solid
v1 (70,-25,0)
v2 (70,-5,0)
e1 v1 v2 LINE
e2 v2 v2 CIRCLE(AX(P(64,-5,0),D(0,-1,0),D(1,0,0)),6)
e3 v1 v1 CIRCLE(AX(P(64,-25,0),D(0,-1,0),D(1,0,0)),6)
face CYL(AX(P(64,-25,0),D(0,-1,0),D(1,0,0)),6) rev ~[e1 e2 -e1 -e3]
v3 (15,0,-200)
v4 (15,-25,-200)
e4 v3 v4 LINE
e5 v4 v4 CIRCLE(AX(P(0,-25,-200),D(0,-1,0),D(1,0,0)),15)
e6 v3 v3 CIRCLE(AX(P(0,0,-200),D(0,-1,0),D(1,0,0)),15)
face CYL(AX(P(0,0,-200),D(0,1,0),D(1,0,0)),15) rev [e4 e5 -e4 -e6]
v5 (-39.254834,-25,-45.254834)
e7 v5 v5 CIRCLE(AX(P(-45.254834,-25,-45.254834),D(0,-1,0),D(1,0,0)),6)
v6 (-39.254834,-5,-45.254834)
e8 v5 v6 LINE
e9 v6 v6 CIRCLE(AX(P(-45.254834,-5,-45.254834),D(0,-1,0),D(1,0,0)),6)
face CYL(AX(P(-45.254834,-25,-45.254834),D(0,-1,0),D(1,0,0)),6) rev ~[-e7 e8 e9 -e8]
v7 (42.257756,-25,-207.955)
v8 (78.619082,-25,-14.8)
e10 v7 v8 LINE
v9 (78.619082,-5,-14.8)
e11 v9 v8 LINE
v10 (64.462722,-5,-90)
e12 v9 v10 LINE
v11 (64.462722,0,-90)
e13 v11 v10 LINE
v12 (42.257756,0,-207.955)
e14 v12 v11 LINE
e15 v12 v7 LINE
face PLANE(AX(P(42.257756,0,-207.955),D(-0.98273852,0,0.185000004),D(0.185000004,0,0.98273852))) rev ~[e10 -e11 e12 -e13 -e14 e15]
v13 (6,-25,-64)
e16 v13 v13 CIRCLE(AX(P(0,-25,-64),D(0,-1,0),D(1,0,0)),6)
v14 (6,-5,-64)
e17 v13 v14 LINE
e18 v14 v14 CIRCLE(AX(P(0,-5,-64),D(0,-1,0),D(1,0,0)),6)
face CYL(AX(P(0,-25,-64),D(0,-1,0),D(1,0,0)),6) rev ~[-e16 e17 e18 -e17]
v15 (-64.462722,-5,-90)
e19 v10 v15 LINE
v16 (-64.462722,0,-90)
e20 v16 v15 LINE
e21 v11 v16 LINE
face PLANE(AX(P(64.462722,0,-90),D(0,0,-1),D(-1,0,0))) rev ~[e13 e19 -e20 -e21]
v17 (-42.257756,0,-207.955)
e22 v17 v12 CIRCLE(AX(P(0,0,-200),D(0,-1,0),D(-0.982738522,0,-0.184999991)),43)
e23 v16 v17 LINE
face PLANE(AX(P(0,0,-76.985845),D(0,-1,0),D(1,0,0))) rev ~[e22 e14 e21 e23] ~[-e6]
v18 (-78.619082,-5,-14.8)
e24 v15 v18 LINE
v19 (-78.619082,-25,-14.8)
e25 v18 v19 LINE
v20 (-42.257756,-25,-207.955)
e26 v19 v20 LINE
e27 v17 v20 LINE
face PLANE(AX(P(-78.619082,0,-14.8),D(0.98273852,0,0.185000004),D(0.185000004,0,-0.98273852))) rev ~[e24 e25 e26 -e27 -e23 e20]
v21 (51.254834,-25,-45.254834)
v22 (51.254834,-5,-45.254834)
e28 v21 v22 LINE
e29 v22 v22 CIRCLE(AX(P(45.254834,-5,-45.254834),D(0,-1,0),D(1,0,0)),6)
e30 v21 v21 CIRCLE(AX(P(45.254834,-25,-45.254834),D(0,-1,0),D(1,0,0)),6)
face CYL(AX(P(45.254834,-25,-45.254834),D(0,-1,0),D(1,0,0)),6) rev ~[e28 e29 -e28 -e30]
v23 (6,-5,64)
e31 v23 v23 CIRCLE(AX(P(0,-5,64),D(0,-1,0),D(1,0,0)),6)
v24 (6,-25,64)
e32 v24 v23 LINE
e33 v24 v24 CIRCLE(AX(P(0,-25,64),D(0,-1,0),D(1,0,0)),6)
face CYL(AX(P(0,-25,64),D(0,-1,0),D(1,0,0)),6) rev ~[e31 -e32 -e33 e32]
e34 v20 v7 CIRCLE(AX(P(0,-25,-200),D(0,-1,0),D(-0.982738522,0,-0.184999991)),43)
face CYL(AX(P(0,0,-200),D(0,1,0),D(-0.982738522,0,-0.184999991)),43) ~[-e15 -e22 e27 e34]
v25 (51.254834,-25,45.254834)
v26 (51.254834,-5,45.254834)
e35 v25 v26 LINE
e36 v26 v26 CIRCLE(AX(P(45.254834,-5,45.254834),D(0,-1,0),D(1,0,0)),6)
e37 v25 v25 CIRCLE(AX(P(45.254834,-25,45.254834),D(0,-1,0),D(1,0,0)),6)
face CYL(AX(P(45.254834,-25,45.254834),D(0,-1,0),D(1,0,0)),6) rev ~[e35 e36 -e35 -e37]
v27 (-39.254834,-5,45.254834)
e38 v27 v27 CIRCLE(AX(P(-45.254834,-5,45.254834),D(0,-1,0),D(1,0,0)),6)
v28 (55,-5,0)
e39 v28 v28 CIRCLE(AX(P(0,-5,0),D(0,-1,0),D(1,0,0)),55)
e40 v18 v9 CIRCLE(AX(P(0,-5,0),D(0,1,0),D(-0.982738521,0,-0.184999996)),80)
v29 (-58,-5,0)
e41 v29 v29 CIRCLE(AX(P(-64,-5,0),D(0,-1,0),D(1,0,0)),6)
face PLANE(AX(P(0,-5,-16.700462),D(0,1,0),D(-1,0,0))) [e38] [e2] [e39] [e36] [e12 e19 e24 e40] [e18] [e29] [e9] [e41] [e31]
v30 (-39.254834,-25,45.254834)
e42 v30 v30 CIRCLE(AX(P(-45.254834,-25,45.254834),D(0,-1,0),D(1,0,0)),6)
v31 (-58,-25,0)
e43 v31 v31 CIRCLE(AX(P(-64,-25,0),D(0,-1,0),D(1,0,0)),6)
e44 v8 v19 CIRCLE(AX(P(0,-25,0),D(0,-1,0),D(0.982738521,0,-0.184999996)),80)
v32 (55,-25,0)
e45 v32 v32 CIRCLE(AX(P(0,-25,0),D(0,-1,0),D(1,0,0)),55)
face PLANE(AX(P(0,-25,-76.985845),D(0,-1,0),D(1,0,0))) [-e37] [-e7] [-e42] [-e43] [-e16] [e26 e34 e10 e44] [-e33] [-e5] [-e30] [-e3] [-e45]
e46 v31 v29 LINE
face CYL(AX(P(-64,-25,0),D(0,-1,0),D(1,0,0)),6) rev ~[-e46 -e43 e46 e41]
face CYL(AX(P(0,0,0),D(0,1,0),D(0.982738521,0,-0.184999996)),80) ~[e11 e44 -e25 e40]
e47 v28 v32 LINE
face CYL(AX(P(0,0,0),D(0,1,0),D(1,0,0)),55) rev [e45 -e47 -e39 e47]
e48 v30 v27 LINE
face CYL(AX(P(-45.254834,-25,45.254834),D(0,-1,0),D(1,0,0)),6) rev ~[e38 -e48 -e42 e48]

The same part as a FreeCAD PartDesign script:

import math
import FreeCAD as App
import Part
import Sketcher

V = App.Vector

doc = App.newDocument("Part")
params = doc.addObject("Spreadsheet::Sheet", "Params")
for row, (alias, value) in enumerate([
    ("sketch1_diameter", "30 mm"),
    ("sketch1_diameter2", "110 mm"),
    ("sketch1_radius", "80 mm"),
    ("sketch1_radius2", "43 mm"),
    ("pad1_length", "25 mm"),
    ("sketch2_diameter", "110 mm"),
    ("sketch2_radius", "80 mm"),
    ("pocket1_length", "5 mm"),
    ("sketch3_diameter", "12 mm"),
    ("pocket2_length", "25 mm"),
], start=1):
    params.set(f"A{row}", alias)
    params.set(f"B{row}", "=" + value)
    params.setAlias(f"B{row}", alias)

body = doc.addObject("PartDesign::Body", "Body")

sketch1 = body.newObject("Sketcher::SketchObject", "Sketch")
sketch1.AttachmentSupport = (doc.getObject("XZ_Plane"), [""])
sketch1.MapMode = "FlatFace"
sketch1.addGeometry([
    Part.ArcOfCircle(Part.Circle(V(0, 0, 0), V(0, 0, 1), 80), math.radians(-10.661132), math.radians(190.661132)),
    Part.LineSegment(V(-78.619082, -14.8, 0), V(-42.257756, -207.955, 0)),
    Part.ArcOfCircle(Part.Circle(V(0, -200, 0), V(0, 0, 1), 43), math.radians(-169.338868), math.radians(-10.661132)),
    Part.LineSegment(V(42.257756, -207.955, 0), V(78.619082, -14.8, 0)),
    Part.Circle(V(0, -200, 0), V(0, 0, 1), 15),
    Part.Circle(V(0, 0, 0), V(0, 0, 1), 55),
], False)
sketch1.addConstraint([
    Sketcher.Constraint("Tangent", 0, 2, 1, 1),
    Sketcher.Constraint("Tangent", 1, 2, 2, 1),
    Sketcher.Constraint("Tangent", 2, 2, 3, 1),
    Sketcher.Constraint("Tangent", 3, 2, 0, 1),
    Sketcher.Constraint("Coincident", 0, 3, -1, 1),
    Sketcher.Constraint("Coincident", 5, 3, -1, 1),
    Sketcher.Constraint("Coincident", 4, 3, 2, 3),
    Sketcher.Constraint("PointOnObject", 2, 3, -2),
    Sketcher.Constraint("Diameter", 4, 30.0),
    Sketcher.Constraint("Diameter", 5, 110.0),
    Sketcher.Constraint("Radius", 0, 80.0),
    Sketcher.Constraint("Radius", 2, 43.0),
    Sketcher.Constraint("DistanceY", 2, 3, -1, 1, 200.0),
])
sketch1.setExpression("Constraints[8]", "Params.sketch1_diameter")
sketch1.setExpression("Constraints[9]", "Params.sketch1_diameter2")
sketch1.setExpression("Constraints[10]", "Params.sketch1_radius")
sketch1.setExpression("Constraints[11]", "Params.sketch1_radius2")
pad1 = body.newObject("PartDesign::Pad", "Pad")
pad1.Profile = sketch1
pad1.setExpression("Length", "Params.pad1_length")

sketch2 = body.newObject("Sketcher::SketchObject", "Sketch001")
sketch2.AttachmentSupport = (doc.getObject("XZ_Plane"), [""])
sketch2.MapMode = "FlatFace"
sketch2.addGeometry([
    Part.LineSegment(V(78.619082, -14.8, 0), V(64.462722, -90, 0)),
    Part.LineSegment(V(64.462722, -90, 0), V(-64.462722, -90, 0)),
    Part.LineSegment(V(-64.462722, -90, 0), V(-78.619082, -14.8, 0)),
    Part.ArcOfCircle(Part.Circle(V(0, 0, 0), V(0, 0, 1), 80), math.radians(-10.661132), math.radians(190.661132)),
    Part.Circle(V(0, 0, 0), V(0, 0, 1), 55),
], False)
sketch2.addConstraint([
    Sketcher.Constraint("Coincident", 0, 2, 1, 1),
    Sketcher.Constraint("Coincident", 1, 2, 2, 1),
    Sketcher.Constraint("Tangent", 2, 2, 3, 2),
    Sketcher.Constraint("Tangent", 3, 1, 0, 1),
    Sketcher.Constraint("Horizontal", 1),
    Sketcher.Constraint("Coincident", 3, 3, -1, 1),
    Sketcher.Constraint("Coincident", 4, 3, -1, 1),
    Sketcher.Constraint("Horizontal", 2, 2, 3, 1),
    Sketcher.Constraint("Diameter", 4, 110.0),
    Sketcher.Constraint("Radius", 3, 80.0),
    Sketcher.Constraint("DistanceY", 0, 2, -1, 1, 90.0),
    Sketcher.Constraint("DistanceY", 2, 2, -1, 1, 14.8),
])
sketch2.setExpression("Constraints[8]", "Params.sketch2_diameter")
sketch2.setExpression("Constraints[9]", "Params.sketch2_radius")
pocket1 = body.newObject("PartDesign::Pocket", "Pocket")
pocket1.Profile = sketch2
pocket1.setExpression("Length", "Params.pocket1_length")
pocket1.Reversed = True

sketch3 = body.newObject("Sketcher::SketchObject", "Sketch002")
sketch3.AttachmentSupport = (doc.getObject("XZ_Plane"), [""])
sketch3.MapMode = "FlatFace"
sketch3.AttachmentOffset = App.Placement(V(0, 0, 25), App.Rotation())
sketch3.addGeometry([
    Part.Circle(V(0, 64, 0), V(0, 0, 1), 6),
    Part.Circle(V(45.254834, 45.254834, 0), V(0, 0, 1), 6),
    Part.Circle(V(64, 0, 0), V(0, 0, 1), 6),
    Part.Circle(V(45.254834, -45.254834, 0), V(0, 0, 1), 6),
    Part.Circle(V(0, -64, 0), V(0, 0, 1), 6),
    Part.Circle(V(-45.254834, -45.254834, 0), V(0, 0, 1), 6),
    Part.Circle(V(-64, 0, 0), V(0, 0, 1), 6),
    Part.Circle(V(-45.254834, 45.254834, 0), V(0, 0, 1), 6),
], False)
sketch3.addConstraint([
    Sketcher.Constraint("Equal", 0, 1),
    Sketcher.Constraint("Equal", 1, 2),
    Sketcher.Constraint("Equal", 2, 3),
    Sketcher.Constraint("Equal", 3, 4),
    Sketcher.Constraint("Equal", 4, 5),
    Sketcher.Constraint("Equal", 5, 6),
    Sketcher.Constraint("Equal", 6, 7),
    Sketcher.Constraint("Symmetric", 0, 3, 4, 3, -1, 1),
    Sketcher.Constraint("Symmetric", 1, 3, 5, 3, -1, 1),
    Sketcher.Constraint("Symmetric", 2, 3, 6, 3, -1, 1),
    Sketcher.Constraint("Symmetric", 3, 3, 7, 3, -1, 1),
    Sketcher.Constraint("Symmetric", 3, 3, 5, 3, -2),
    Sketcher.Constraint("PointOnObject", 0, 3, -2),
    Sketcher.Constraint("PointOnObject", 2, 3, -1),
    Sketcher.Constraint("Diameter", 0, 12.0),
    Sketcher.Constraint("DistanceY", -1, 1, 0, 3, 64.0),
    Sketcher.Constraint("DistanceX", -1, 1, 2, 3, 64.0),
    Sketcher.Constraint("DistanceY", 3, 3, 1, 3, 90.509668),
    Sketcher.Constraint("DistanceX", 5, 3, 3, 3, 90.509668),
])
sketch3.setExpression("Constraints[14]", "Params.sketch3_diameter")
pocket2 = body.newObject("PartDesign::Pocket", "Pocket001")
pocket2.Profile = sketch3
pocket2.setExpression("Length", "Params.pocket2_length")

doc.recompute()
